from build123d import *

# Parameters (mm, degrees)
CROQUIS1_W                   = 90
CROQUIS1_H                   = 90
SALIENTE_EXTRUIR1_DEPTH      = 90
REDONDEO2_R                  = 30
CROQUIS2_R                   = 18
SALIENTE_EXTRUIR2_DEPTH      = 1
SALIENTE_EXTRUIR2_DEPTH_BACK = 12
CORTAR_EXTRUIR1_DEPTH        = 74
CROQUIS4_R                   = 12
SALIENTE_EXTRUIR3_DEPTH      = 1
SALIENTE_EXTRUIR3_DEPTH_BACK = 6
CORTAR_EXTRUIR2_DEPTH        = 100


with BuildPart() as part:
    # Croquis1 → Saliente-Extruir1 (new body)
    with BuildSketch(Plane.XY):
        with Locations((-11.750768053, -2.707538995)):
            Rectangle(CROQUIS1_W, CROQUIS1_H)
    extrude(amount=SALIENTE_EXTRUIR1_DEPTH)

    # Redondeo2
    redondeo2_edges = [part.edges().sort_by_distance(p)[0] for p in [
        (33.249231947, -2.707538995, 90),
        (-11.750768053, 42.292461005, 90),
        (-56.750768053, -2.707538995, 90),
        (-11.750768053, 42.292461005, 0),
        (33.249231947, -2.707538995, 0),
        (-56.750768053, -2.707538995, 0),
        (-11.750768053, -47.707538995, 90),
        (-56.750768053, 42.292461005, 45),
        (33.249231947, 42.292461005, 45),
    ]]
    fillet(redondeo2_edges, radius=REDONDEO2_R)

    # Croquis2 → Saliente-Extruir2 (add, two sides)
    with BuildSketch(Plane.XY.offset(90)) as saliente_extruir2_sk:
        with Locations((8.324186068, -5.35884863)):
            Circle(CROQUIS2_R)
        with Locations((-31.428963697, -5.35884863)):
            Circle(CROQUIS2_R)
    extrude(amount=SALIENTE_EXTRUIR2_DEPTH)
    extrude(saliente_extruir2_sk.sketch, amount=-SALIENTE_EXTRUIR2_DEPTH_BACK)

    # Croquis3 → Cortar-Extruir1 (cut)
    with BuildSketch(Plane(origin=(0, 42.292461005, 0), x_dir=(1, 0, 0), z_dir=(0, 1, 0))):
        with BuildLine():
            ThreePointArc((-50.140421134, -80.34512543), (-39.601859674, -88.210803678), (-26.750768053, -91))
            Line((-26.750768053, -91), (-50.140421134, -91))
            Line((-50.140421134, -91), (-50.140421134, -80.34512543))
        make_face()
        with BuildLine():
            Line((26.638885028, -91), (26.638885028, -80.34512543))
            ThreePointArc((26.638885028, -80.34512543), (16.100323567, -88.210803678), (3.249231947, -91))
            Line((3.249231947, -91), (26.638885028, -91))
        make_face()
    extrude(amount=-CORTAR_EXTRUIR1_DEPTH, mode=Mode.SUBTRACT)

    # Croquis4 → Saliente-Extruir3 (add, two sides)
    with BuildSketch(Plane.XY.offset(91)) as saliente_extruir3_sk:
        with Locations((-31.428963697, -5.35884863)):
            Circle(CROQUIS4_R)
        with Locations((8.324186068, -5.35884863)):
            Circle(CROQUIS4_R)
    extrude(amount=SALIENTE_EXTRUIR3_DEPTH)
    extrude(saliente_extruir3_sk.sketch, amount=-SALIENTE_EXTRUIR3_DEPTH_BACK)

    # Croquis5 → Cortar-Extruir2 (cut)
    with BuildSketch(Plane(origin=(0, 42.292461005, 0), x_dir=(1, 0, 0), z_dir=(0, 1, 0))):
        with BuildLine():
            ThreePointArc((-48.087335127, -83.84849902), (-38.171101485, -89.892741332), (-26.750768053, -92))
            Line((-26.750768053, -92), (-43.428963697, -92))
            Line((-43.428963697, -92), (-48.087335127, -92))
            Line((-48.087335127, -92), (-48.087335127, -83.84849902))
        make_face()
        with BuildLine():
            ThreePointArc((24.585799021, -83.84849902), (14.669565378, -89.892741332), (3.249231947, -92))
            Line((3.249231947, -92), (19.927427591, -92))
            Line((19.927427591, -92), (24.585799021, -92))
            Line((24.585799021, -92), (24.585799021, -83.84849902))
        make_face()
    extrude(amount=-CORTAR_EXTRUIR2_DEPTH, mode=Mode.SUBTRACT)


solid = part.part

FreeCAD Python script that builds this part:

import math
import FreeCAD as App
import Part
import Sketcher

V = App.Vector


def edges_at(feature, points):
    """Names of the edges that pass closest to the given points."""
    edges = feature.Shape.Edges
    near = lambda p: min(range(len(edges)), key=lambda i: edges[i].distToShape(Part.Vertex(*p))[0])
    return sorted({f"Edge{near(p) + 1}" for p in points})

doc = App.newDocument("Part")
body = doc.addObject("PartDesign::Body", "Body")

sketch1 = body.newObject("Sketcher::SketchObject", "Sketch")
sketch1.AttachmentSupport = (doc.getObject("XY_Plane"), [""])
sketch1.MapMode = "FlatFace"
sketch1.addGeometry([
    Part.LineSegment(V(-57, 42, 0), V(-57, -48, 0)),
    Part.LineSegment(V(-57, -48, 0), V(33, -48, 0)),
    Part.LineSegment(V(33, -48, 0), V(33, 42, 0)),
    Part.LineSegment(V(33, 42, 0), V(-57, 42, 0)),
], False)
sketch1.addConstraint([
    Sketcher.Constraint("Coincident", 0, 2, 1, 1),
    Sketcher.Constraint("Coincident", 1, 2, 2, 1),
    Sketcher.Constraint("Coincident", 2, 2, 3, 1),
    Sketcher.Constraint("Coincident", 3, 2, 0, 1),
    Sketcher.Constraint("Vertical", 0),
    Sketcher.Constraint("Horizontal", 1),
    Sketcher.Constraint("Vertical", 2),
    Sketcher.Constraint("Horizontal", 3),
    Sketcher.Constraint("Equal", 3, 0),
    Sketcher.Constraint("DistanceX", 1, 1, 1, 2, 90.0),
    Sketcher.Constraint("DistanceX", 0, 2, -1, 1, 56.750768),
    Sketcher.Constraint("DistanceY", 0, 2, -1, 1, 47.707539),
])
pad1 = body.newObject("PartDesign::Pad", "Pad")
pad1.Profile = sketch1
pad1.Length = 90
doc.recompute()

fillet = body.newObject("PartDesign::Fillet", "Fillet")
fillet.Base = (pad1, edges_at(pad1, [
    (33.249, -2.708, 90),
    (-11.751, 42.292, 90),
    (-56.751, -2.708, 90),
    (-11.751, 42.292, 0),
    (33.249, -2.708, 0),
    (-56.751, -2.708, 0),
    (-11.751, -47.708, 90),
    (-56.751, 42.292, 45),
    (33.249, 42.292, 45),
]))
fillet.Radius = 30

sketch2 = body.newObject("Sketcher::SketchObject", "Sketch001")
sketch2.AttachmentSupport = (doc.getObject("XY_Plane"), [""])
sketch2.MapMode = "FlatFace"
sketch2.AttachmentOffset = App.Placement(V(0, 0, 90), App.Rotation())
sketch2.addGeometry([
    Part.Circle(V(8, -5, 0), V(0, 0, 1), 18),
    Part.Circle(V(-31, -5, 0), V(0, 0, 1), 18),
], False)
sketch2.addConstraint([
    Sketcher.Constraint("Equal", 0, 1),
    Sketcher.Constraint("Horizontal", 0, 3, 1, 3),
    Sketcher.Constraint("Diameter", 0, 36.0),
    Sketcher.Constraint("DistanceY", 0, 3, -1, 1, 5.358849),
    Sketcher.Constraint("DistanceX", 1, 3, 0, 3, 39.75315),
    Sketcher.Constraint("DistanceX", -1, 1, 0, 3, 8.324186),
])
pad2 = body.newObject("PartDesign::Pad", "Pad001")
pad2.Profile = sketch2
pad2.Type = "TwoLengths"
pad2.Length = 1
pad2.Length2 = 12

sketch3 = body.newObject("Sketcher::SketchObject", "Sketch002")
sketch3.AttachmentSupport = (doc.getObject("XZ_Plane"), [""])
sketch3.MapMode = "FlatFace"
sketch3.AttachmentOffset = App.Placement(V(0, 0, -42.292461), App.Rotation())
sketch3.addGeometry([
    Part.ArcOfCircle(Part.Circle(V(-27, 60, 0), V(0, 0, 1), 31), math.radians(90), math.radians(139)),
    Part.LineSegment(V(-50, 80, 0), V(-50, 91, 0)),
    Part.LineSegment(V(-50, 91, 0), V(-27, 91, 0)),
    Part.LineSegment(V(27, 91, 0), V(27, 80, 0)),
    Part.ArcOfCircle(Part.Circle(V(3, 60, 0), V(0, 0, 1), 31), math.radians(41), math.radians(90)),
    Part.LineSegment(V(3, 91, 0), V(27, 91, 0)),
], False)
sketch3.addConstraint([
    Sketcher.Constraint("Coincident", 0, 2, 1, 1),
    Sketcher.Constraint("Coincident", 1, 2, 2, 1),
    Sketcher.Constraint("Tangent", 2, 2, 0, 1),
    Sketcher.Constraint("Coincident", 3, 2, 4, 1),
    Sketcher.Constraint("Tangent", 4, 2, 5, 1),
    Sketcher.Constraint("Coincident", 5, 2, 3, 1),
    Sketcher.Constraint("Vertical", 1),
    Sketcher.Constraint("Horizontal", 2),
    Sketcher.Constraint("Vertical", 3),
    Sketcher.Constraint("Horizontal", 5),
    Sketcher.Constraint("Equal", 0, 4),
    Sketcher.Constraint("Horizontal", 0, 3, 4, 3),
    Sketcher.Constraint("Horizontal", 0, 2, 3, 2),
    Sketcher.Constraint("Radius", 0, 31.0),
    Sketcher.Constraint("DistanceY", -1, 1, 0, 3, 60.0),
    Sketcher.Constraint("DistanceX", 0, 3, 4, 3, 30.0),
    Sketcher.Constraint("DistanceX", 2, 1, 2, 2, 23.389653),
    Sketcher.Constraint("DistanceX", 0, 3, -1, 1, 26.750768),
])
pocket1 = body.newObject("PartDesign::Pocket", "Pocket")
pocket1.Profile = sketch3
pocket1.Length = 74
pocket1.Reversed = True

sketch4 = body.newObject("Sketcher::SketchObject", "Sketch003")
sketch4.AttachmentSupport = (doc.getObject("XY_Plane"), [""])
sketch4.MapMode = "FlatFace"
sketch4.AttachmentOffset = App.Placement(V(0, 0, 91), App.Rotation())
sketch4.addGeometry([
    Part.Circle(V(-31, -5, 0), V(0, 0, 1), 12),
    Part.Circle(V(8, -5, 0), V(0, 0, 1), 12),
], False)
sketch4.addConstraint([
    Sketcher.Constraint("Equal", 0, 1),
    Sketcher.Constraint("Horizontal", 0, 3, 1, 3),
    Sketcher.Constraint("Diameter", 0, 24.0),
    Sketcher.Constraint("DistanceY", 0, 3, -1, 1, 5.358849),
    Sketcher.Constraint("DistanceX", 0, 3, 1, 3, 39.75315),
    Sketcher.Constraint("DistanceX", 0, 3, -1, 1, 31.428964),
])
pad3 = body.newObject("PartDesign::Pad", "Pad002")
pad3.Profile = sketch4
pad3.Type = "TwoLengths"
pad3.Length = 1
pad3.Length2 = 6

sketch5 = body.newObject("Sketcher::SketchObject", "Sketch004")
sketch5.AttachmentSupport = (doc.getObject("XZ_Plane"), [""])
sketch5.MapMode = "FlatFace"
sketch5.AttachmentOffset = App.Placement(V(0, 0, -42.292461), App.Rotation())
sketch5.addGeometry([
    Part.ArcOfCircle(Part.Circle(V(-27, 60, 0), V(0, 0, 1), 32), math.radians(90), math.radians(132)),
    Part.LineSegment(V(-48, 84, 0), V(-48, 92, 0)),
    Part.LineSegment(V(-48, 92, 0), V(-27, 92, 0)),
    Part.ArcOfCircle(Part.Circle(V(3, 60, 0), V(0, 0, 1), 32), math.radians(48), math.radians(90)),
    Part.LineSegment(V(3, 92, 0), V(25, 92, 0)),
    Part.LineSegment(V(25, 92, 0), V(25, 84, 0)),
], False)
sketch5.addConstraint([
    Sketcher.Constraint("Coincident", 0, 2, 1, 1),
    Sketcher.Constraint("Coincident", 1, 2, 2, 1),
    Sketcher.Constraint("Tangent", 2, 2, 0, 1),
    Sketcher.Constraint("Tangent", 3, 2, 4, 1),
    Sketcher.Constraint("Coincident", 4, 2, 5, 1),
    Sketcher.Constraint("Coincident", 5, 2, 3, 1),
    Sketcher.Constraint("Vertical", 1),
    Sketcher.Constraint("Horizontal", 2),
    Sketcher.Constraint("Horizontal", 4),
    Sketcher.Constraint("Vertical", 5),
    Sketcher.Constraint("Equal", 0, 3),
    Sketcher.Constraint("Horizontal", 0, 3, 3, 3),
    Sketcher.Constraint("Horizontal", 0, 2, 5, 2),
    Sketcher.Constraint("Radius", 0, 32.0),
    Sketcher.Constraint("DistanceY", -1, 1, 0, 3, 60.0),
    Sketcher.Constraint("DistanceX", 0, 3, 3, 3, 30.0),
    Sketcher.Constraint("DistanceY", 1, 1, 1, 2, 8.151501),
    Sketcher.Constraint("DistanceX", -1, 1, 4, 2, 24.585799),
])
pocket2 = body.newObject("PartDesign::Pocket", "Pocket001")
pocket2.Profile = sketch5
pocket2.Length = 100
pocket2.Reversed = True

doc.recompute()
